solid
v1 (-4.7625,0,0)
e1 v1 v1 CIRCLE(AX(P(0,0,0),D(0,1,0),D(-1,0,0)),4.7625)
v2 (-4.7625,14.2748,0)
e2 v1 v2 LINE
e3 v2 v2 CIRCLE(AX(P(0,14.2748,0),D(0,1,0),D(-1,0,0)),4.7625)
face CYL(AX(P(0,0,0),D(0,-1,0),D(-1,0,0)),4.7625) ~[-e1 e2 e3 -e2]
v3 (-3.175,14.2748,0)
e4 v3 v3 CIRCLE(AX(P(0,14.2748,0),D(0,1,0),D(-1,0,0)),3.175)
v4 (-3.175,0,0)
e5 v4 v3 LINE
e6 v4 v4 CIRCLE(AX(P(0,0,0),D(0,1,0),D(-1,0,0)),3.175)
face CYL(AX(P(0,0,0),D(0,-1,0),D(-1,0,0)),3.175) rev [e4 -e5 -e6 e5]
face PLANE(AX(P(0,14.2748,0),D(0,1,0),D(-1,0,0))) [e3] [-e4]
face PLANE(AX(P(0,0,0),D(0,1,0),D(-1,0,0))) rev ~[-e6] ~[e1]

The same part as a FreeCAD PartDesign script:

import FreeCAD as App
import Part
import Sketcher
Q = App.Units.Quantity

doc = App.newDocument("Part")
params = doc.addObject("Spreadsheet::Sheet", "Params")
for row, (alias, value) in enumerate([
    ("sketch1_diameter", "0.25 in"),
    ("sketch1_diameter2", "0.375 in"),
    ("pad1_length", "0.562 in"),
], start=1):
    params.set(f"A{row}", alias)
    params.set(f"B{row}", "=" + value)
    params.setAlias(f"B{row}", alias)

body = doc.addObject("PartDesign::Body", "Body")

# Sketch on XZ plane
sketch1 = body.newObject("Sketcher::SketchObject", "Sketch")
sketch1.AttachmentSupport = (doc.getObject("XZ_Plane"), [""])
sketch1.MapMode = "FlatFace"
sketch1.addGeometry([
    Part.Circle(App.Vector(0, 0, 0), App.Vector(0, 0, 1), 4.8),
    Part.Circle(App.Vector(0, 0, 0), App.Vector(0, 0, 1), 3.2),
], False)
sketch1.addConstraint([
    Sketcher.Constraint("Coincident", 0, 3, -1, 1),
    Sketcher.Constraint("Coincident", 1, 3, -1, 1),
    Sketcher.Constraint("Diameter", 1, Q("0.25 in")),
    Sketcher.Constraint("Diameter", 0, Q("0.375 in")),
])
sketch1.setExpression("Constraints[2]", "Params.sketch1_diameter")
sketch1.setExpression("Constraints[3]", "Params.sketch1_diameter2")
pad1 = body.newObject("PartDesign::Pad", "Pad")
pad1.Profile = sketch1
pad1.setExpression("Length", "Params.pad1_length")
pad1.Reversed = True

doc.recompute()
